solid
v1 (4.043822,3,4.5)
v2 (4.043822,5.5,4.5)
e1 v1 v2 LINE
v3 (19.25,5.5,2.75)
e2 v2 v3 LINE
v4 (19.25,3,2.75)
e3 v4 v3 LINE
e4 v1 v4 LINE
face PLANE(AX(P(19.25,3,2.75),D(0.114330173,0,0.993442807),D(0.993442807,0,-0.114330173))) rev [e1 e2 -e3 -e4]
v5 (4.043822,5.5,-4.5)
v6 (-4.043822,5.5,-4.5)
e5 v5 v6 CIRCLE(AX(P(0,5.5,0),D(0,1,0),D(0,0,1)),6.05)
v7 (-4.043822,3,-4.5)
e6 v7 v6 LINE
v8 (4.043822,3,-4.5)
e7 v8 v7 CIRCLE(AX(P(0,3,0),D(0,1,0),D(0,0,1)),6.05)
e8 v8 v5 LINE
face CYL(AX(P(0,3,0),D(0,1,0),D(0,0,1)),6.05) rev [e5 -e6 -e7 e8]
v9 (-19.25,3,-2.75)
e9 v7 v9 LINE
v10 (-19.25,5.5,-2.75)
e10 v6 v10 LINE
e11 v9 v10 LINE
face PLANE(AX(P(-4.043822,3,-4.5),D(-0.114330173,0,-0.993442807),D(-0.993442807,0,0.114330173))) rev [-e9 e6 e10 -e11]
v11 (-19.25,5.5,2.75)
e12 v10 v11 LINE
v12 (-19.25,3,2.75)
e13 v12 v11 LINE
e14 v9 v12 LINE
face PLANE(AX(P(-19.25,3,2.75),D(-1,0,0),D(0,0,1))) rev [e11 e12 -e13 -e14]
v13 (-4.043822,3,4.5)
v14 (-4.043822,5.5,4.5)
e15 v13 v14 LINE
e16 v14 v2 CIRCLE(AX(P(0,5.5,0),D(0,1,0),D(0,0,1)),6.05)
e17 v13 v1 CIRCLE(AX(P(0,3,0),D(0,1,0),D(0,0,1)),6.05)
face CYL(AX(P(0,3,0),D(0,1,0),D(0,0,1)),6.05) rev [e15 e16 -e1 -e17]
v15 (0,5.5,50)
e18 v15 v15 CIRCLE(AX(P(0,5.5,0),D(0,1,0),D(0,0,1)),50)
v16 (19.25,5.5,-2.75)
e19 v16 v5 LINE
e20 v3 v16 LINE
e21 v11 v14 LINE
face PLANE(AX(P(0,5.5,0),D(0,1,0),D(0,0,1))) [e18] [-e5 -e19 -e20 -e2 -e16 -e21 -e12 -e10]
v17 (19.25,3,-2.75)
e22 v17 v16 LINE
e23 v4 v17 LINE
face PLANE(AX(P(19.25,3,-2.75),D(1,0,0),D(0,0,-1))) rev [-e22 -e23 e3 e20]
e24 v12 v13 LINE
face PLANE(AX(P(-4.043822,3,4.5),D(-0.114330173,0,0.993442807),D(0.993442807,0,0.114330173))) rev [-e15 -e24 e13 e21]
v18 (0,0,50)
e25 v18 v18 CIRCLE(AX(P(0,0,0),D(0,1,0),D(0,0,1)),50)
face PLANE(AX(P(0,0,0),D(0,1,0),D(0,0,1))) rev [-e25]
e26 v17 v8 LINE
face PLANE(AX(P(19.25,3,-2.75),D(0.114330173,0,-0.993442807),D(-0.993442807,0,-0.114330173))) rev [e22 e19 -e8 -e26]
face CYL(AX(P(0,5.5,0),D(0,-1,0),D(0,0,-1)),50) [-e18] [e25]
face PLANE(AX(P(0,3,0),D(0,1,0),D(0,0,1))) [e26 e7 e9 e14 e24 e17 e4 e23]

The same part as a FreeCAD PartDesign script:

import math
import FreeCAD as App
import Part
import Sketcher
Q = App.Units.Quantity

doc = App.newDocument("Part")
body = doc.addObject("PartDesign::Body", "Body")

# Sketch on XZ plane
sketch1 = body.newObject("Sketcher::SketchObject", "Sketch")
sketch1.AttachmentSupport = (doc.getObject("XZ_Plane"), [""])
sketch1.MapMode = "FlatFace"
sketch1.addGeometry(Part.Circle(App.Vector(0, 0, 0), App.Vector(0, 0, 1), 50), False)
sketch1.addConstraint(Sketcher.Constraint("Coincident", 0, 3, -1, 1))
sketch1.addConstraint(Sketcher.Constraint("Diameter", 0, Q("100 mm")))
pad1 = body.newObject("PartDesign::Pad", "Pad")
pad1.Profile = sketch1
pad1.Length = 5.5
pad1.Reversed = True

# Sketch on XZ plane
sketch2 = body.newObject("Sketcher::SketchObject", "Sketch001")
sketch2.AttachmentSupport = (doc.getObject("XZ_Plane"), [""])
sketch2.MapMode = "FlatFace"
sketch2.AttachmentOffset = App.Placement(App.Vector(0, 0, -5.5), App.Rotation())
sketch2.addGeometry(Part.LineSegment(App.Vector(-19, 3, 0), App.Vector(-4, 4, 0)), False)
sketch2.addGeometry(Part.ArcOfCircle(Part.Circle(App.Vector(0, 0, 0), App.Vector(0, 0, 1), 6), math.radians(48), math.radians(132)), False)
sketch2.addGeometry(Part.LineSegment(App.Vector(4, 4, 0), App.Vector(19, 3, 0)), False)
sketch2.addGeometry(Part.LineSegment(App.Vector(19, 3, 0), App.Vector(19, -3, 0)), False)
sketch2.addGeometry(Part.LineSegment(App.Vector(19, -3, 0), App.Vector(4, -4, 0)), False)
sketch2.addGeometry(Part.ArcOfCircle(Part.Circle(App.Vector(0, 0, 0), App.Vector(0, 0, 1), 6), math.radians(-132), math.radians(-48)), False)
sketch2.addGeometry(Part.LineSegment(App.Vector(-4, -4, 0), App.Vector(-19, -3, 0)), False)
sketch2.addGeometry(Part.LineSegment(App.Vector(-19, -3, 0), App.Vector(-19, 3, 0)), False)
sketch2.addConstraint(Sketcher.Constraint("Coincident", 0, 2, 1, 2))
sketch2.addConstraint(Sketcher.Constraint("Coincident", 1, 1, 2, 1))
sketch2.addConstraint(Sketcher.Constraint("Coincident", 2, 2, 3, 1))
sketch2.addConstraint(Sketcher.Constraint("Coincident", 3, 2, 4, 1))
sketch2.addConstraint(Sketcher.Constraint("Coincident", 4, 2, 5, 2))
sketch2.addConstraint(Sketcher.Constraint("Coincident", 5, 1, 6, 1))
sketch2.addConstraint(Sketcher.Constraint("Coincident", 6, 2, 7, 1))
sketch2.addConstraint(Sketcher.Constraint("Coincident", 7, 2, 0, 1))
sketch2.addConstraint(Sketcher.Constraint("Vertical", 3))
sketch2.addConstraint(Sketcher.Constraint("Vertical", 7))
sketch2.addConstraint(Sketcher.Constraint("Coincident", 1, 3, -1, 1))
sketch2.addConstraint(Sketcher.Constraint("Coincident", 5, 3, -1, 1))
sketch2.addConstraint(Sketcher.Constraint("Equal", 1, 5))
sketch2.addConstraint(Sketcher.Constraint("Symmetric", 2, 2, 6, 2, -1, 1))
sketch2.addConstraint(Sketcher.Constraint("Parallel", 0, 4))
sketch2.addConstraint(Sketcher.Constraint("Parallel", 2, 6))
sketch2.addConstraint(Sketcher.Constraint("Horizontal", 0, 2, 1, 1))
sketch2.addConstraint(Sketcher.Constraint("Horizontal", 4, 2, 5, 1))
sketch2.addConstraint(Sketcher.Constraint("Horizontal", 3, 2, 6, 2))
sketch2.addConstraint(Sketcher.Constraint("Radius", 1, Q("6.05 mm")))
sketch2.addConstraint(Sketcher.Constraint("DistanceY", 3, 2, 3, 1, Q("5.5 mm")))
sketch2.addConstraint(Sketcher.Constraint("DistanceY", 4, 2, 1, 1, Q("9 mm")))
sketch2.addConstraint(Sketcher.Constraint("DistanceX", -1, 1, 2, 2, Q("19.25 mm")))
pocket1 = body.newObject("PartDesign::Pocket", "Pocket")
pocket1.Profile = sketch2
pocket1.Length = 2.5
pocket1.Reversed = True

doc.recompute()
